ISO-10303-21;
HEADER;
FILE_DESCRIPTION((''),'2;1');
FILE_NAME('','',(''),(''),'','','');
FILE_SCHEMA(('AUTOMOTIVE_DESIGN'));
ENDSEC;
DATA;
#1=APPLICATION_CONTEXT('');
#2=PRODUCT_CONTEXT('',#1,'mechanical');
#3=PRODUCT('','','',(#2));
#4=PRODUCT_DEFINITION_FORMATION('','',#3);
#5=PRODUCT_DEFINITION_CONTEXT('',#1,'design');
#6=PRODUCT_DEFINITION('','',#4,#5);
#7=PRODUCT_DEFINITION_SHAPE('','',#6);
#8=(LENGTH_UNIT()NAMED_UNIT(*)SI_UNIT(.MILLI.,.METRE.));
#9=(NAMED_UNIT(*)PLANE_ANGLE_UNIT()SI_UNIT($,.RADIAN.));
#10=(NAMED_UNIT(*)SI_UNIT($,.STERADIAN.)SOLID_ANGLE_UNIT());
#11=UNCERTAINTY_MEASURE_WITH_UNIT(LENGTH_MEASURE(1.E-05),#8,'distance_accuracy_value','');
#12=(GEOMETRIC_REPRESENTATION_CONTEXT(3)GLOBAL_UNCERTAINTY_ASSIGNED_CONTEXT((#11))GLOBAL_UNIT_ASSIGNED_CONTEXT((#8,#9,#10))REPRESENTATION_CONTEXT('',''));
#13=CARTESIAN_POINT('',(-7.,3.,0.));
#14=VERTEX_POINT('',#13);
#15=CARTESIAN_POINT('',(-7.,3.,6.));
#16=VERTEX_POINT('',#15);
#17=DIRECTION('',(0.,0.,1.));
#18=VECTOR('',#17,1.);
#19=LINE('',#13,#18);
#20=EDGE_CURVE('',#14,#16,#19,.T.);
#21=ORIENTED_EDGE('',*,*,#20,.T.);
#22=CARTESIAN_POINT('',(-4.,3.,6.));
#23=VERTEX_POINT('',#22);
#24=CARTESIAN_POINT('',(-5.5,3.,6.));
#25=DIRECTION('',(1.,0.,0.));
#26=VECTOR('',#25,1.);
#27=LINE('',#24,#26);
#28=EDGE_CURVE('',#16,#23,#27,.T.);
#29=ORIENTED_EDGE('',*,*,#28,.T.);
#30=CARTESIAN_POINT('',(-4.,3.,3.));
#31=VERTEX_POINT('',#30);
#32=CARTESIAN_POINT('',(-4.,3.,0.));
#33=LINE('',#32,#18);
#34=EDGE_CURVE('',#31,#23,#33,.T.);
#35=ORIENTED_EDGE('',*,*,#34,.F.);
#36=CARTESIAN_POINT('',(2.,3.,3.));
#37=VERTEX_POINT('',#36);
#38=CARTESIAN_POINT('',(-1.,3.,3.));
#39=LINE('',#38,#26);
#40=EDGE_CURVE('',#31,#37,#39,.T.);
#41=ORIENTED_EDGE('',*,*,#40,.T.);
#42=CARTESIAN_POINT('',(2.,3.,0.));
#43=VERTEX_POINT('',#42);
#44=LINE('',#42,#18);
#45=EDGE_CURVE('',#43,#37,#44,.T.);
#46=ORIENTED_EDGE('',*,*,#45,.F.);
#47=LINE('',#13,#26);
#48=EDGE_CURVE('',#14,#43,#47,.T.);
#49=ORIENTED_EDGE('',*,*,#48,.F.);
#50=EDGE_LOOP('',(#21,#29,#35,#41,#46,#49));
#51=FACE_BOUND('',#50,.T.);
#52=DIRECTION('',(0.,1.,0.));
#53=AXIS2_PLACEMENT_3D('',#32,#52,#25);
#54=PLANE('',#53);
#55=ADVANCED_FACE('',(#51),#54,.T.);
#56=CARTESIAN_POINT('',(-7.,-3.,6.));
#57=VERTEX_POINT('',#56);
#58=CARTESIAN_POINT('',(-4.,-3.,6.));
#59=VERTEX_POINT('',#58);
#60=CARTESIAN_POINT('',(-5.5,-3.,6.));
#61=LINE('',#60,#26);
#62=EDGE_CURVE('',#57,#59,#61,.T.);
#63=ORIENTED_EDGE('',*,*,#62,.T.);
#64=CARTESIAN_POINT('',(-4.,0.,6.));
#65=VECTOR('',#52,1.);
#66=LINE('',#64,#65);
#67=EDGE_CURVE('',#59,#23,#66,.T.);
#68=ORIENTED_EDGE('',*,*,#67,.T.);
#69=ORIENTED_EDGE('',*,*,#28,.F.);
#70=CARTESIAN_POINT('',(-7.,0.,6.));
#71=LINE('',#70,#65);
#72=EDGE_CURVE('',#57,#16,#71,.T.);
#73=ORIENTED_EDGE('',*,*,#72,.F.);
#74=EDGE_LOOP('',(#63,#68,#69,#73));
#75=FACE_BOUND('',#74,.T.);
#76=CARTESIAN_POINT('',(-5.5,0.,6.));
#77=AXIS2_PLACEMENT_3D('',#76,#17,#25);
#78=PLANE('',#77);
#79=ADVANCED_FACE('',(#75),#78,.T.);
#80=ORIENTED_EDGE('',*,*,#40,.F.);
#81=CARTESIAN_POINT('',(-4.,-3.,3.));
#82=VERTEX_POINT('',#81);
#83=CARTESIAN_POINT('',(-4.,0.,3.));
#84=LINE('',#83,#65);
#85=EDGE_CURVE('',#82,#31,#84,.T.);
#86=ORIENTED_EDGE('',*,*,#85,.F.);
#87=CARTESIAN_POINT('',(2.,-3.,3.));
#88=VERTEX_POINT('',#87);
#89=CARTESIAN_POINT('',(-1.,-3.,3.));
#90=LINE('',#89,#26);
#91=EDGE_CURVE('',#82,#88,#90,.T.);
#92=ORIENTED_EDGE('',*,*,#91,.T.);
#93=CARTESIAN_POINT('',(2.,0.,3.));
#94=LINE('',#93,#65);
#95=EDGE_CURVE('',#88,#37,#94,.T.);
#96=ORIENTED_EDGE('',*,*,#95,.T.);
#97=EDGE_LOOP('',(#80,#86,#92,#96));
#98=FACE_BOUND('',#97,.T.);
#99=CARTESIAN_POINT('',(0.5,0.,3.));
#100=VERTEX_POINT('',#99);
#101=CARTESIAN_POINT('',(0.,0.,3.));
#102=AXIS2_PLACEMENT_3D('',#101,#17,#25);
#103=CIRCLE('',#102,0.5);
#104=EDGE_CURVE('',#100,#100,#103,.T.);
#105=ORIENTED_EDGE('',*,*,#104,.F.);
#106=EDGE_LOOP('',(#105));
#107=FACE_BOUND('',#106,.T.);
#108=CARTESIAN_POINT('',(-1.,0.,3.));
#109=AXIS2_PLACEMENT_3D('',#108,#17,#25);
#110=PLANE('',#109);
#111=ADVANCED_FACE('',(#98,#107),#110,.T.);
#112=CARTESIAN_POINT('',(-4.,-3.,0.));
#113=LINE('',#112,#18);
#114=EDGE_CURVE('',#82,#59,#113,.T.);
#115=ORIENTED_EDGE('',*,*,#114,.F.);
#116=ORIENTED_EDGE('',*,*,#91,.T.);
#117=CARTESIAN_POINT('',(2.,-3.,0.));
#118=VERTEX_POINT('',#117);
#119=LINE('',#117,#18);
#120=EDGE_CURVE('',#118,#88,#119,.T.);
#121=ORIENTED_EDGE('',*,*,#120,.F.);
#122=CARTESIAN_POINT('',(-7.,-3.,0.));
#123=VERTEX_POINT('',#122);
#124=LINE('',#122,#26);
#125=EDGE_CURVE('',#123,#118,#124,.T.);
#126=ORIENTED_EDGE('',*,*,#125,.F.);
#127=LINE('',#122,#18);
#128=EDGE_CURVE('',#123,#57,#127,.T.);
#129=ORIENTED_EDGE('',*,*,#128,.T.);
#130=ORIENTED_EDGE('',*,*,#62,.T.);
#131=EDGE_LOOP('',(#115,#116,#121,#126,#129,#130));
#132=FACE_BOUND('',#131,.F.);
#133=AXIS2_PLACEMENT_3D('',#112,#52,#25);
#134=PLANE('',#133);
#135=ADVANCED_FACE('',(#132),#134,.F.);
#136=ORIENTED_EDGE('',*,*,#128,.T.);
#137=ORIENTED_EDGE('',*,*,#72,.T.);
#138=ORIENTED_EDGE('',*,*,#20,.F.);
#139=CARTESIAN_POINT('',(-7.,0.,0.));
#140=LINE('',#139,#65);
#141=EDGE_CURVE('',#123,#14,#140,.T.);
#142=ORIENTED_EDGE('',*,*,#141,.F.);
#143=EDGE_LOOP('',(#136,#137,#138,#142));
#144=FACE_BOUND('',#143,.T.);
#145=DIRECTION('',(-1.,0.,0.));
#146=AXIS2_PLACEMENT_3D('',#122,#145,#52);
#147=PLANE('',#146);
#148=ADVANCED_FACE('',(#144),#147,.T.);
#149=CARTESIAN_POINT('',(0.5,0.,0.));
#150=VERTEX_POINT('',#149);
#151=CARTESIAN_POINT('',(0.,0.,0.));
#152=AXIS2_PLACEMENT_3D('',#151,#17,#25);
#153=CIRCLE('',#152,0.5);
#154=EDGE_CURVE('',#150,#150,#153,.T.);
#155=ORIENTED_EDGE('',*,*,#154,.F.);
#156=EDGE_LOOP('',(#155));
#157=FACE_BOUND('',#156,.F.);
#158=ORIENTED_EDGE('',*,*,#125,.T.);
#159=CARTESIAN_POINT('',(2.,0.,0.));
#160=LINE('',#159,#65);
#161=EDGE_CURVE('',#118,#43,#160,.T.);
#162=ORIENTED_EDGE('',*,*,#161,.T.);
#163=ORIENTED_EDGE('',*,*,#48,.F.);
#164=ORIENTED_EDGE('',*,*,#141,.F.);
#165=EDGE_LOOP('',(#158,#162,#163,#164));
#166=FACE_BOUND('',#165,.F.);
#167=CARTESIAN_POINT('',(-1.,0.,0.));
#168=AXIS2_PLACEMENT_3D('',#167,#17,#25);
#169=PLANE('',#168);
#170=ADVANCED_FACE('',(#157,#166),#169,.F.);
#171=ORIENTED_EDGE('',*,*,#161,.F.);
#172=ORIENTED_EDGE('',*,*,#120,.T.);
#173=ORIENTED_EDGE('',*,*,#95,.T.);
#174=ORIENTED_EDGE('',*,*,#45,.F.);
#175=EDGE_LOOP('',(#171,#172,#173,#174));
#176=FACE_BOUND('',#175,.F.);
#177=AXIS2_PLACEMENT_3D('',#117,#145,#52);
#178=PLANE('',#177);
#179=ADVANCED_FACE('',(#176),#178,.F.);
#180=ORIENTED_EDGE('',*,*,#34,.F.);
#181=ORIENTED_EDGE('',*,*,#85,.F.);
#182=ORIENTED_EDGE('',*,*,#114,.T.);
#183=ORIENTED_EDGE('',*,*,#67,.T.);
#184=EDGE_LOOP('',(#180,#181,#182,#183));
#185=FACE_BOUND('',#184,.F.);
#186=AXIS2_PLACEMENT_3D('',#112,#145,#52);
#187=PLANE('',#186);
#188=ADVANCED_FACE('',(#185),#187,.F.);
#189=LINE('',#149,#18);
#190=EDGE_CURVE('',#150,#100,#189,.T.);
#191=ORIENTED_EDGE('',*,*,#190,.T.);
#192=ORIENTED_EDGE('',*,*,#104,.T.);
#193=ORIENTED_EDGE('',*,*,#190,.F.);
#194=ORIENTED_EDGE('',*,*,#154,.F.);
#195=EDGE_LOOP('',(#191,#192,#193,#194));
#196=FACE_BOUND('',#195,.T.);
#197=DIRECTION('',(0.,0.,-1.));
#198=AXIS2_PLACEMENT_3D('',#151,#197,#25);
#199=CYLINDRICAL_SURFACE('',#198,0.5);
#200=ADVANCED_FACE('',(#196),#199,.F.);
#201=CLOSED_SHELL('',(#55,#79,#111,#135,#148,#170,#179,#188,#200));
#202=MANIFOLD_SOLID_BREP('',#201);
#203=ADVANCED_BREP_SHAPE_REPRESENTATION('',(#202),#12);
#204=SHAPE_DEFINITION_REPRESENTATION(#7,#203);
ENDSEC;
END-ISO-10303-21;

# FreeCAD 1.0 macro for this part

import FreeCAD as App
import Part
import Sketcher

V = App.Vector

doc = App.newDocument("Part")
params = doc.addObject("Spreadsheet::Sheet", "Params")
for row, (alias, value) in enumerate([
    ("sketch1_width", "3 mm"),
    ("sketch1_height", "6 mm"),
    ("pad1_length", "6 mm"),
    ("sketch2_diameter", "1 mm"),
    ("sketch2_width", "6 mm"),
    ("pad2_length", "3 mm"),
], start=1):
    params.set(f"A{row}", alias)
    params.set(f"B{row}", "=" + value)
    params.setAlias(f"B{row}", alias)

body = doc.addObject("PartDesign::Body", "Body")

# Sketch on XY plane
sketch1 = body.newObject("Sketcher::SketchObject", "Sketch")
sketch1.AttachmentSupport = (doc.getObject("XY_Plane"), [""])
sketch1.MapMode = "FlatFace"
sketch1.addGeometry(Part.LineSegment(V(-7, 3, 0), V(-7, -3, 0)), False)
sketch1.addGeometry(Part.LineSegment(V(-7, -3, 0), V(-4, -3, 0)), False)
sketch1.addGeometry(Part.LineSegment(V(-4, -3, 0), V(-4, 3, 0)), False)
sketch1.addGeometry(Part.LineSegment(V(-4, 3, 0), V(-7, 3, 0)), False)
sketch1.addConstraint(Sketcher.Constraint("Coincident", 0, 2, 1, 1))
sketch1.addConstraint(Sketcher.Constraint("Coincident", 1, 2, 2, 1))
sketch1.addConstraint(Sketcher.Constraint("Coincident", 2, 2, 3, 1))
sketch1.addConstraint(Sketcher.Constraint("Coincident", 3, 2, 0, 1))
sketch1.addConstraint(Sketcher.Constraint("Vertical", 0))
sketch1.addConstraint(Sketcher.Constraint("Horizontal", 1))
sketch1.addConstraint(Sketcher.Constraint("Vertical", 2))
sketch1.addConstraint(Sketcher.Constraint("Horizontal", 3))
sketch1.addConstraint(Sketcher.Constraint("DistanceX", 1, 1, 1, 2, 3.0))
sketch1.addConstraint(Sketcher.Constraint("DistanceY", 0, 2, 0, 1, 6.0))
sketch1.addConstraint(Sketcher.Constraint("DistanceX", 0, 2, -1, 1, 7.0))
sketch1.addConstraint(Sketcher.Constraint("DistanceY", 0, 2, -1, 1, 3.0))
sketch1.setExpression("Constraints[8]", "Params.sketch1_width")
sketch1.setExpression("Constraints[9]", "Params.sketch1_height")
pad1 = body.newObject("PartDesign::Pad", "Pad")
pad1.Profile = sketch1
pad1.setExpression("Length", "Params.pad1_length")

# Sketch on XY plane
sketch2 = body.newObject("Sketcher::SketchObject", "Sketch001")
sketch2.AttachmentSupport = (doc.getObject("XY_Plane"), [""])
sketch2.MapMode = "FlatFace"
sketch2.addGeometry(Part.LineSegment(V(-4, 3, 0), V(-4, -3, 0)), False)
sketch2.addGeometry(Part.LineSegment(V(-4, -3, 0), V(2, -3, 0)), False)
sketch2.addGeometry(Part.LineSegment(V(2, -3, 0), V(2, 3, 0)), False)
sketch2.addGeometry(Part.LineSegment(V(2, 3, 0), V(-4, 3, 0)), False)
sketch2.addGeometry(Part.Circle(V(0, 0, 0), V(0, 0, 1), 0.5), False)
sketch2.addConstraint(Sketcher.Constraint("Coincident", 0, 2, 1, 1))
sketch2.addConstraint(Sketcher.Constraint("Coincident", 1, 2, 2, 1))
sketch2.addConstraint(Sketcher.Constraint("Coincident", 2, 2, 3, 1))
sketch2.addConstraint(Sketcher.Constraint("Coincident", 3, 2, 0, 1))
sketch2.addConstraint(Sketcher.Constraint("Vertical", 0))
sketch2.addConstraint(Sketcher.Constraint("Horizontal", 1))
sketch2.addConstraint(Sketcher.Constraint("Vertical", 2))
sketch2.addConstraint(Sketcher.Constraint("Horizontal", 3))
sketch2.addConstraint(Sketcher.Constraint("Coincident", 4, 3, -1, 1))
sketch2.addConstraint(Sketcher.Constraint("Equal", 3, 0))
sketch2.addConstraint(Sketcher.Constraint("Diameter", 4, 1.0))
sketch2.addConstraint(Sketcher.Constraint("DistanceX", 1, 1, 1, 2, 6.0))
sketch2.addConstraint(Sketcher.Constraint("DistanceX", 0, 2, -1, 1, 4.0))
sketch2.addConstraint(Sketcher.Constraint("DistanceY", 0, 2, -1, 1, 3.0))
sketch2.setExpression("Constraints[10]", "Params.sketch2_diameter")
sketch2.setExpression("Constraints[11]", "Params.sketch2_width")
pad2 = body.newObject("PartDesign::Pad", "Pad001")
pad2.Profile = sketch2
pad2.setExpression("Length", "Params.pad2_length")

doc.recompute()
